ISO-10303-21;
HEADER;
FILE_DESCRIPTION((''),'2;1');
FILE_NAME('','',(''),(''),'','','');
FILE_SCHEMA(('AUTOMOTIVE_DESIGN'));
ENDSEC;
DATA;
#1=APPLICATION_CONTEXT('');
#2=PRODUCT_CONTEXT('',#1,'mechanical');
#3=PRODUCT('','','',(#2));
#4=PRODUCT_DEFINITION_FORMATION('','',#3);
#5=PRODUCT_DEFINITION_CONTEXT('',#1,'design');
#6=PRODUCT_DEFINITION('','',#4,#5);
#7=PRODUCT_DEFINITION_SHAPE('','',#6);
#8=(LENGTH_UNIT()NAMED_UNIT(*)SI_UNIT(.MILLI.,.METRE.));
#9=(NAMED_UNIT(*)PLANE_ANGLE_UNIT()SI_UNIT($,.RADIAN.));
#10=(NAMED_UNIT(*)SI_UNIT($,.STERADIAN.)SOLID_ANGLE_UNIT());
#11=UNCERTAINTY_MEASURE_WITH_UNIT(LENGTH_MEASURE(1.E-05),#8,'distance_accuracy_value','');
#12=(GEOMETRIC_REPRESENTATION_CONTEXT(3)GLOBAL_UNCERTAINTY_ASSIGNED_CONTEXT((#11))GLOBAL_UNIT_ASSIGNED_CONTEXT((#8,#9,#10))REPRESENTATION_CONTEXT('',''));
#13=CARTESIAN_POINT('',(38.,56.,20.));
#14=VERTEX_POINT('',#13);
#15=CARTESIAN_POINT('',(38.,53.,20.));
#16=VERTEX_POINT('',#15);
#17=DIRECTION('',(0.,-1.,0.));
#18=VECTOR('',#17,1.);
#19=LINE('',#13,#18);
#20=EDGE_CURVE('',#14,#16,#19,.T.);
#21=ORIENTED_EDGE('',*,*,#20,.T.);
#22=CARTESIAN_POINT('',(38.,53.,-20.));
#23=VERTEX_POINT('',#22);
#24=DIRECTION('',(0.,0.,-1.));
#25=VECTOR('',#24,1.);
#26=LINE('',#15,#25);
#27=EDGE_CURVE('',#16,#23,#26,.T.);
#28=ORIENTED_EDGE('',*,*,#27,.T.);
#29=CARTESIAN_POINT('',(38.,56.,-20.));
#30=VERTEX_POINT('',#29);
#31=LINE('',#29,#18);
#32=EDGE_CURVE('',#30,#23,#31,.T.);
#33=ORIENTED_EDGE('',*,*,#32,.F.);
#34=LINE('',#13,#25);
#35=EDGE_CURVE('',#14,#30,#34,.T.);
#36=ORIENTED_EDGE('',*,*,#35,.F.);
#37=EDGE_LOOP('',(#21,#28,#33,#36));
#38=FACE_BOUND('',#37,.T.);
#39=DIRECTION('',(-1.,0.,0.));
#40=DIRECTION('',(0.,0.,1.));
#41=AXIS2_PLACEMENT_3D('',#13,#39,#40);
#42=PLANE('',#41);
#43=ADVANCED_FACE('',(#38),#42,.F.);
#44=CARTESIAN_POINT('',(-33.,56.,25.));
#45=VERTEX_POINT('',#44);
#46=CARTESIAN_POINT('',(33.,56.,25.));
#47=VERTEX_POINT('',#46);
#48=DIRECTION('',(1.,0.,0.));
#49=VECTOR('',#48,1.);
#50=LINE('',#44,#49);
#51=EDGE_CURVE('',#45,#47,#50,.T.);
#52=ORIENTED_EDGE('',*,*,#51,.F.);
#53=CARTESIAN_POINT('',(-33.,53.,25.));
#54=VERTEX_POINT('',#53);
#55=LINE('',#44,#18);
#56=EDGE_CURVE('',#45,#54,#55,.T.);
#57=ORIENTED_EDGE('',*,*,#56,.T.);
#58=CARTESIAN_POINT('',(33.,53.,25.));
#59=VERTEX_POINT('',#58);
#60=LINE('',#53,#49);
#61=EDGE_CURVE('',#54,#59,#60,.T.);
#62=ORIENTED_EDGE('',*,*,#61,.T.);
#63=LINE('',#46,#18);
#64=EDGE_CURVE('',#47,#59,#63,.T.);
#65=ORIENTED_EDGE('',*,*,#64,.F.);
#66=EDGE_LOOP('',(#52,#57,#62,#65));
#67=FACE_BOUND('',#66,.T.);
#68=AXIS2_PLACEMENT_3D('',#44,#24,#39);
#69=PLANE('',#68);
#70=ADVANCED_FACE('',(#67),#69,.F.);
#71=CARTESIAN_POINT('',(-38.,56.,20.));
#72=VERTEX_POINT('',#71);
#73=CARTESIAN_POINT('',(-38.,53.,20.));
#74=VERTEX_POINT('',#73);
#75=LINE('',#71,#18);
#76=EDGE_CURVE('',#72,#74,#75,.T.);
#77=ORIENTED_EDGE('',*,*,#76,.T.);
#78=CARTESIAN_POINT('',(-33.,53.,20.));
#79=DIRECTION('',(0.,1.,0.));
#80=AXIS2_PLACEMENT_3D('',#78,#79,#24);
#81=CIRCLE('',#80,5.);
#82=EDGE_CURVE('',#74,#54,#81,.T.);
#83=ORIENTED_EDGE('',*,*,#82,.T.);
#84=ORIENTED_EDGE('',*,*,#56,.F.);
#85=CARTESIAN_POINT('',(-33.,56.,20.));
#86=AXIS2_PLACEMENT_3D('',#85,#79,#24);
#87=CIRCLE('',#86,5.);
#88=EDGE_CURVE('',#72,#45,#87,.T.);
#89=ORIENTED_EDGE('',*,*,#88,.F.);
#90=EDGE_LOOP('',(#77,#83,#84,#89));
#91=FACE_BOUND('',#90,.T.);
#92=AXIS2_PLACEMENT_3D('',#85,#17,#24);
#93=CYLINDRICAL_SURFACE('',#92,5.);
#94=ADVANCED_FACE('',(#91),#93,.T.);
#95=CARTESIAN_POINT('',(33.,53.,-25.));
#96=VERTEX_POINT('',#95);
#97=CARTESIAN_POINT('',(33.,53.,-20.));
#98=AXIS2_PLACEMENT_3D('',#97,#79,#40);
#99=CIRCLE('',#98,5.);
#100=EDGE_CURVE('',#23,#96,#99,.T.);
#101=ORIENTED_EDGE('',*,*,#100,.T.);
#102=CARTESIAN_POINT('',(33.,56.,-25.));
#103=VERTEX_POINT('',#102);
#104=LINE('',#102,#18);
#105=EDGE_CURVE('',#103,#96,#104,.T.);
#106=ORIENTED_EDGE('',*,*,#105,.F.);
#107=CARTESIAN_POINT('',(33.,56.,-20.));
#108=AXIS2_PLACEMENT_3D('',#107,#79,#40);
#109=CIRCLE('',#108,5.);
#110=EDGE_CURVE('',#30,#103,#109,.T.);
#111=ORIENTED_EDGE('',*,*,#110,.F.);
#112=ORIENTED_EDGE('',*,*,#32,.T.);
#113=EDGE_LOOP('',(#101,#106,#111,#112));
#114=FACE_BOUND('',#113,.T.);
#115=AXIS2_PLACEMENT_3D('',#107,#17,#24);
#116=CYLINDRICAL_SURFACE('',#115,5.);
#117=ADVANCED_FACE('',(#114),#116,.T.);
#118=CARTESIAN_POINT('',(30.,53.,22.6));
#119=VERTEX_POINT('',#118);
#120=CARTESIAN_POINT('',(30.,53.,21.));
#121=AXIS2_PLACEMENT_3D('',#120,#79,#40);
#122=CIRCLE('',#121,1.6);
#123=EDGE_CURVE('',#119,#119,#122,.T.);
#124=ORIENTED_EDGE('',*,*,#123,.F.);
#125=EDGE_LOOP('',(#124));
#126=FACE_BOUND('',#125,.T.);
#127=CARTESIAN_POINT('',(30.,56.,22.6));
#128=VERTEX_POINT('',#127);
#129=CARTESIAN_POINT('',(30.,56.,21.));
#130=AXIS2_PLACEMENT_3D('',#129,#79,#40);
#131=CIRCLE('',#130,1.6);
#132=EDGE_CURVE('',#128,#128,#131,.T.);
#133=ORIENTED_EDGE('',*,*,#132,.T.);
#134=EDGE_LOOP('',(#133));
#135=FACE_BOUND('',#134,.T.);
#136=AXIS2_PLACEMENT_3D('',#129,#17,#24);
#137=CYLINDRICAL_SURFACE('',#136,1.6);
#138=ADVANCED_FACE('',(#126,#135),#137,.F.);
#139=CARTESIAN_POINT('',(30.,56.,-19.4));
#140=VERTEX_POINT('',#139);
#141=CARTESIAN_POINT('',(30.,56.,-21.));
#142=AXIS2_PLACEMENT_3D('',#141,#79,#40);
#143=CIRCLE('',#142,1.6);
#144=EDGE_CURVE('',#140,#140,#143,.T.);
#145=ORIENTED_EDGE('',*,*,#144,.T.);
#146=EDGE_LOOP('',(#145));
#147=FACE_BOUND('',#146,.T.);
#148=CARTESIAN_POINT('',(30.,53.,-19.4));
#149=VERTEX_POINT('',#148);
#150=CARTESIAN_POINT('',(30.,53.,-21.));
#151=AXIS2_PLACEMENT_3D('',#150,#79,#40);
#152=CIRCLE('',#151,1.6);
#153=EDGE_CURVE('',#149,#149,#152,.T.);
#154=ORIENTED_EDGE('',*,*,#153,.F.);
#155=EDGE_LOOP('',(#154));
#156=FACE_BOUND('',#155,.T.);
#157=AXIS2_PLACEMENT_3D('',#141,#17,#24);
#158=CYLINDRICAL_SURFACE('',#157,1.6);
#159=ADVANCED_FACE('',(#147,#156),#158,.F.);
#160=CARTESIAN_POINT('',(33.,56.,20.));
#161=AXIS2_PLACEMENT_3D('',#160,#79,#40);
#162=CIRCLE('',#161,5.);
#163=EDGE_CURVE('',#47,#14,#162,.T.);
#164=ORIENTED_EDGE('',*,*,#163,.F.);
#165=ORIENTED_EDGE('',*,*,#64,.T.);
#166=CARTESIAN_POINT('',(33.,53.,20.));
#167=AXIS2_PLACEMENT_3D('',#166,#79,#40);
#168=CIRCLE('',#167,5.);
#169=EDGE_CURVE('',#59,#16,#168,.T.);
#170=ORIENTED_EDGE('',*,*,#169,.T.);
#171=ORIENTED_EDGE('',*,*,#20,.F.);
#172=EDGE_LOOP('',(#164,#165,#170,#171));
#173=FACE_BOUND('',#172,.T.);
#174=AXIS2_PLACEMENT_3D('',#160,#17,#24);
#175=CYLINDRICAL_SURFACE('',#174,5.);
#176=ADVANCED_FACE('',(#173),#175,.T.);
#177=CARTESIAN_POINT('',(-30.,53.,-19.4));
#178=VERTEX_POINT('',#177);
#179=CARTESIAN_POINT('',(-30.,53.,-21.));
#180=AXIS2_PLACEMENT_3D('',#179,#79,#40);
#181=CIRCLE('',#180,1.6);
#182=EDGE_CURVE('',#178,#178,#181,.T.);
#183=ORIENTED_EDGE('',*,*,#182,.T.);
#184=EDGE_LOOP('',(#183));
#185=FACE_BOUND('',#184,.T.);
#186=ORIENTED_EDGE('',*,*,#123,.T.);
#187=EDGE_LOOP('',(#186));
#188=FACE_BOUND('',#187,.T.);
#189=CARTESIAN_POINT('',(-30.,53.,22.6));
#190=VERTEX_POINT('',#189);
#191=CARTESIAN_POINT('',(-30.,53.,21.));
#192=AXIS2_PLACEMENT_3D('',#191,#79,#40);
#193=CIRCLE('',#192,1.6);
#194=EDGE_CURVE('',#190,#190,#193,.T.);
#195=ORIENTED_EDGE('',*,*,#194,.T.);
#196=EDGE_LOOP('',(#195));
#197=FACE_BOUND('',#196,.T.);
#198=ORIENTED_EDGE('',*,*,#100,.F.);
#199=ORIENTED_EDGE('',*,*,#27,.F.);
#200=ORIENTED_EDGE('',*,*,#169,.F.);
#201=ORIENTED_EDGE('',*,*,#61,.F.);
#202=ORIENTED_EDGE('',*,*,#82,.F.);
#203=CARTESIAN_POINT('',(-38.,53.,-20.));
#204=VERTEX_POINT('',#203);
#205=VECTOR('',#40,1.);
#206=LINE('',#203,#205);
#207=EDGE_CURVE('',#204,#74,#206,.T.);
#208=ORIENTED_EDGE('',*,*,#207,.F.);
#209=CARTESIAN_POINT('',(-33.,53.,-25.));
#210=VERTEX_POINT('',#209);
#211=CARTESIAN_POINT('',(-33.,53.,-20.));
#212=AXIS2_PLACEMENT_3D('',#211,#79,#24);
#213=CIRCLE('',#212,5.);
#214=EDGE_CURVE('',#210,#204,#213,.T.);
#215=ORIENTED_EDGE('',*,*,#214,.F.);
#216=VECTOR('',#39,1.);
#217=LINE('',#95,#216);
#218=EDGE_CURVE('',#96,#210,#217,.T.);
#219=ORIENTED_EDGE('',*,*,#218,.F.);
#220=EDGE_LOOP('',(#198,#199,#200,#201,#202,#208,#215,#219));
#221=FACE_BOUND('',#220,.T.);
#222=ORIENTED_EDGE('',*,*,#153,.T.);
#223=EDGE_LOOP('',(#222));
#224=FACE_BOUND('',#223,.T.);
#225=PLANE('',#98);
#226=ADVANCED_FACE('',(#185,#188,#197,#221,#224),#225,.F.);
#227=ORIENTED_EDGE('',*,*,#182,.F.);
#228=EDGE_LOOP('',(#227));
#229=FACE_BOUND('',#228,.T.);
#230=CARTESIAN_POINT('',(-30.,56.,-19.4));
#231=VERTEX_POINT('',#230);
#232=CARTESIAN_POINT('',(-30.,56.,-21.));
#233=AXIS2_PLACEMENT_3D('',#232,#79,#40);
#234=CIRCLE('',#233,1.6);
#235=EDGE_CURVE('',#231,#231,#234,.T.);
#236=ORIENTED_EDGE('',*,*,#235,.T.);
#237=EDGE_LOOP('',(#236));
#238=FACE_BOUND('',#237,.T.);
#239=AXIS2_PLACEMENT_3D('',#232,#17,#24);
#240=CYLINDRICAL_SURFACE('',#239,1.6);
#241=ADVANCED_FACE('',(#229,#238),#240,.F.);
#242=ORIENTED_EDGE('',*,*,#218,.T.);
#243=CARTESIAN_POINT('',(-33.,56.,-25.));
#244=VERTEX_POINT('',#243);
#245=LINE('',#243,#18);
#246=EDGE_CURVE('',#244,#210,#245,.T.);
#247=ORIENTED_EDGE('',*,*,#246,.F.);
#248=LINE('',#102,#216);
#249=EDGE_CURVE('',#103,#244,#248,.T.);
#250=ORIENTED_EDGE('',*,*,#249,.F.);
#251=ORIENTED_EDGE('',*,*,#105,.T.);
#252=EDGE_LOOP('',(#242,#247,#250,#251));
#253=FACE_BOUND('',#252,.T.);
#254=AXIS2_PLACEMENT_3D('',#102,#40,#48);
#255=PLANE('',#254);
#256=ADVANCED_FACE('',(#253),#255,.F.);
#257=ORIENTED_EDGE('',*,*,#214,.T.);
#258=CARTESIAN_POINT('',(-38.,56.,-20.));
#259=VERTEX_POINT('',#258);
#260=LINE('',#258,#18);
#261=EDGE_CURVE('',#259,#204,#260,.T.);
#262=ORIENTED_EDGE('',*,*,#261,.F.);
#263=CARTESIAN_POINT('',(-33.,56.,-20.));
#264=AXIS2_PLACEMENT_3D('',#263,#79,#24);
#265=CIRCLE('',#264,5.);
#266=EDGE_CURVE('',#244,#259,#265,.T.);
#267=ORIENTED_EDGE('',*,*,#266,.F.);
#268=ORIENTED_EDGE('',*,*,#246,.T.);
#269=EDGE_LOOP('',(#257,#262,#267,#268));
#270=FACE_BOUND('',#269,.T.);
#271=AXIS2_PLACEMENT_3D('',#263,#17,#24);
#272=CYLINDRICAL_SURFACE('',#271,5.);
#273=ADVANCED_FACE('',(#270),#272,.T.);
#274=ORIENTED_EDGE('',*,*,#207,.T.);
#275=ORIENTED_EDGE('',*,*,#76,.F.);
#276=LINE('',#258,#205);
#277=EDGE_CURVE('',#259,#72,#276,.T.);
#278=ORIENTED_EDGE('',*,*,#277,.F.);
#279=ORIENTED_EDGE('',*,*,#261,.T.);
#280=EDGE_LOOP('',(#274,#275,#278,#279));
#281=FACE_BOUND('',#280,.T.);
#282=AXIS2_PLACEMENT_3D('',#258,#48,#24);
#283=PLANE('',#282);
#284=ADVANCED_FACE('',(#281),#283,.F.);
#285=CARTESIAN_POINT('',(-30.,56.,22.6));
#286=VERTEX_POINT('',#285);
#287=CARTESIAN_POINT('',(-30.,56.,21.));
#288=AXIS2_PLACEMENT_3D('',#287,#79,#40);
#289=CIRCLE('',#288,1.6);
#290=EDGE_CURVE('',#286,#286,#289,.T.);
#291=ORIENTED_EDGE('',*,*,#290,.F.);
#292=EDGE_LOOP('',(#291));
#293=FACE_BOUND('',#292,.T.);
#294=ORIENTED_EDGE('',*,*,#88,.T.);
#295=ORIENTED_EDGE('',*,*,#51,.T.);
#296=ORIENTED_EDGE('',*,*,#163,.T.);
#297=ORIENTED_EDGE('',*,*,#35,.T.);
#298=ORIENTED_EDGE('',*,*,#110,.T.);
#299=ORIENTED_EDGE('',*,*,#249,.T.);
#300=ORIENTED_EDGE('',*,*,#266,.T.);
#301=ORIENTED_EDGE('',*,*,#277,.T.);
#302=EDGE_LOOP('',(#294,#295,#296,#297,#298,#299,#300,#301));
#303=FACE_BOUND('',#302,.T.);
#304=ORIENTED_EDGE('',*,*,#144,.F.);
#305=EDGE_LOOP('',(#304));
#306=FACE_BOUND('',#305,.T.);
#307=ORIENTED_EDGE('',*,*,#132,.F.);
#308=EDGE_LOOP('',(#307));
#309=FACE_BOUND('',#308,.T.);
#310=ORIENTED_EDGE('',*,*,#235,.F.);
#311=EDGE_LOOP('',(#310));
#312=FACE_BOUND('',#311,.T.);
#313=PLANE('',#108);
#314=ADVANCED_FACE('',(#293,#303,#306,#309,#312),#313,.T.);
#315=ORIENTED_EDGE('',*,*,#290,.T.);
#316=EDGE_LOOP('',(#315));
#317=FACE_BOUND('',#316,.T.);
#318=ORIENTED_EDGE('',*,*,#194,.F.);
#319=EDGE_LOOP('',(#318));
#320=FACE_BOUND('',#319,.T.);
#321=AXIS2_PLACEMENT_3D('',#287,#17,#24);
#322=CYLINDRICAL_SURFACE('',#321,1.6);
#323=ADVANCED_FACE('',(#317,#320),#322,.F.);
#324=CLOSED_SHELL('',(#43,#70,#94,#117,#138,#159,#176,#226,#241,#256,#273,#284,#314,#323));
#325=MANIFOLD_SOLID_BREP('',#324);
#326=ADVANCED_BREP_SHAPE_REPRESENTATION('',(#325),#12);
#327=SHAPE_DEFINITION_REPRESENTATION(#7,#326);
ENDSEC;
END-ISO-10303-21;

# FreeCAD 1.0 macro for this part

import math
import FreeCAD as App
import Part
import Sketcher

V = App.Vector
Q = App.Units.Quantity

doc = App.newDocument("Part")
params = doc.addObject("Spreadsheet::Sheet", "Params")
for row, (alias, value) in enumerate([
    ("sketch1_radius", "5 mm"),
    ("sketch1_diameter", "3.2 mm"),
    ("sketch1_width", "66 mm"),
    ("sketch1_height", "40 mm"),
    ("pad1_length", "3 mm"),
], start=1):
    params.set(f"A{row}", alias)
    params.set(f"B{row}", "=" + value)
    params.setAlias(f"B{row}", alias)

body = doc.addObject("PartDesign::Body", "Body")

# Sketch on XZ plane
sketch1 = body.newObject("Sketcher::SketchObject", "Sketch")
sketch1.AttachmentSupport = (doc.getObject("XZ_Plane"), [""])
sketch1.MapMode = "FlatFace"
sketch1.AttachmentOffset = App.Placement(V(0, 0, -53), App.Rotation())
sketch1.addGeometry(Part.LineSegment(V(33, -25, 0), V(-33, -25, 0)), False)
sketch1.addGeometry(Part.ArcOfCircle(Part.Circle(V(-33, -20, 0), V(0, 0, 1), 5), math.radians(180), math.radians(270)), False)
sketch1.addGeometry(Part.LineSegment(V(-38, -20, 0), V(-38, 20, 0)), False)
sketch1.addGeometry(Part.ArcOfCircle(Part.Circle(V(-33, 20, 0), V(0, 0, 1), 5), math.radians(90), math.radians(180)), False)
sketch1.addGeometry(Part.LineSegment(V(-33, 25, 0), V(33, 25, 0)), False)
sketch1.addGeometry(Part.ArcOfCircle(Part.Circle(V(33, 20, 0), V(0, 0, 1), 5), math.radians(0), math.radians(90)), False)
sketch1.addGeometry(Part.LineSegment(V(38, 20, 0), V(38, -20, 0)), False)
sketch1.addGeometry(Part.ArcOfCircle(Part.Circle(V(33, -20, 0), V(0, 0, 1), 5), math.radians(-90), math.radians(0)), False)
sketch1.addGeometry(Part.Circle(V(-30, 21, 0), V(0, 0, 1), 1.6), False)
sketch1.addGeometry(Part.Circle(V(30, 21, 0), V(0, 0, 1), 1.6), False)
sketch1.addGeometry(Part.Circle(V(-30, -21, 0), V(0, 0, 1), 1.6), False)
sketch1.addGeometry(Part.Circle(V(30, -21, 0), V(0, 0, 1), 1.6), False)
sketch1.addConstraint(Sketcher.Constraint("Tangent", 0, 2, 1, 2))
sketch1.addConstraint(Sketcher.Constraint("Tangent", 1, 1, 2, 1))
sketch1.addConstraint(Sketcher.Constraint("Tangent", 2, 2, 3, 2))
sketch1.addConstraint(Sketcher.Constraint("Tangent", 3, 1, 4, 1))
sketch1.addConstraint(Sketcher.Constraint("Tangent", 4, 2, 5, 2))
sketch1.addConstraint(Sketcher.Constraint("Tangent", 5, 1, 6, 1))
sketch1.addConstraint(Sketcher.Constraint("Tangent", 6, 2, 7, 2))
sketch1.addConstraint(Sketcher.Constraint("Tangent", 7, 1, 0, 1))
sketch1.addConstraint(Sketcher.Constraint("Horizontal", 0))
sketch1.addConstraint(Sketcher.Constraint("Vertical", 2))
sketch1.addConstraint(Sketcher.Constraint("Horizontal", 4))
sketch1.addConstraint(Sketcher.Constraint("Vertical", 6))
sketch1.addConstraint(Sketcher.Constraint("Equal", 1, 3))
sketch1.addConstraint(Sketcher.Constraint("Equal", 3, 5))
sketch1.addConstraint(Sketcher.Constraint("Equal", 5, 7))
sketch1.addConstraint(Sketcher.Constraint("Equal", 8, 9))
sketch1.addConstraint(Sketcher.Constraint("Equal", 9, 10))
sketch1.addConstraint(Sketcher.Constraint("Equal", 10, 11))
sketch1.addConstraint(Sketcher.Constraint("Symmetric", 1, 3, 5, 3, -1, 1))
sketch1.addConstraint(Sketcher.Constraint("Symmetric", 9, 3, 10, 3, -1, 1))
sketch1.addConstraint(Sketcher.Constraint("Symmetric", 8, 3, 11, 3, -1, 1))
sketch1.addConstraint(Sketcher.Constraint("Symmetric", 8, 3, 9, 3, -2))
sketch1.addConstraint(Sketcher.Constraint("Radius", 1, Q("5 mm")))
sketch1.addConstraint(Sketcher.Constraint("Diameter", 8, Q("3.2 mm")))
sketch1.addConstraint(Sketcher.Constraint("DistanceX", 0, 2, 0, 1, Q("66 mm")))
sketch1.addConstraint(Sketcher.Constraint("DistanceY", 2, 1, 2, 2, Q("40 mm")))
sketch1.addConstraint(Sketcher.Constraint("DistanceX", 8, 3, -1, 1, Q("30 mm")))
sketch1.addConstraint(Sketcher.Constraint("DistanceY", -1, 1, 8, 3, Q("21 mm")))
sketch1.setExpression("Constraints[22]", "Params.sketch1_radius")
sketch1.setExpression("Constraints[23]", "Params.sketch1_diameter")
sketch1.setExpression("Constraints[24]", "Params.sketch1_width")
sketch1.setExpression("Constraints[25]", "Params.sketch1_height")
pad1 = body.newObject("PartDesign::Pad", "Pad")
pad1.Profile = sketch1
pad1.setExpression("Length", "Params.pad1_length")
pad1.Reversed = True

doc.recompute()
